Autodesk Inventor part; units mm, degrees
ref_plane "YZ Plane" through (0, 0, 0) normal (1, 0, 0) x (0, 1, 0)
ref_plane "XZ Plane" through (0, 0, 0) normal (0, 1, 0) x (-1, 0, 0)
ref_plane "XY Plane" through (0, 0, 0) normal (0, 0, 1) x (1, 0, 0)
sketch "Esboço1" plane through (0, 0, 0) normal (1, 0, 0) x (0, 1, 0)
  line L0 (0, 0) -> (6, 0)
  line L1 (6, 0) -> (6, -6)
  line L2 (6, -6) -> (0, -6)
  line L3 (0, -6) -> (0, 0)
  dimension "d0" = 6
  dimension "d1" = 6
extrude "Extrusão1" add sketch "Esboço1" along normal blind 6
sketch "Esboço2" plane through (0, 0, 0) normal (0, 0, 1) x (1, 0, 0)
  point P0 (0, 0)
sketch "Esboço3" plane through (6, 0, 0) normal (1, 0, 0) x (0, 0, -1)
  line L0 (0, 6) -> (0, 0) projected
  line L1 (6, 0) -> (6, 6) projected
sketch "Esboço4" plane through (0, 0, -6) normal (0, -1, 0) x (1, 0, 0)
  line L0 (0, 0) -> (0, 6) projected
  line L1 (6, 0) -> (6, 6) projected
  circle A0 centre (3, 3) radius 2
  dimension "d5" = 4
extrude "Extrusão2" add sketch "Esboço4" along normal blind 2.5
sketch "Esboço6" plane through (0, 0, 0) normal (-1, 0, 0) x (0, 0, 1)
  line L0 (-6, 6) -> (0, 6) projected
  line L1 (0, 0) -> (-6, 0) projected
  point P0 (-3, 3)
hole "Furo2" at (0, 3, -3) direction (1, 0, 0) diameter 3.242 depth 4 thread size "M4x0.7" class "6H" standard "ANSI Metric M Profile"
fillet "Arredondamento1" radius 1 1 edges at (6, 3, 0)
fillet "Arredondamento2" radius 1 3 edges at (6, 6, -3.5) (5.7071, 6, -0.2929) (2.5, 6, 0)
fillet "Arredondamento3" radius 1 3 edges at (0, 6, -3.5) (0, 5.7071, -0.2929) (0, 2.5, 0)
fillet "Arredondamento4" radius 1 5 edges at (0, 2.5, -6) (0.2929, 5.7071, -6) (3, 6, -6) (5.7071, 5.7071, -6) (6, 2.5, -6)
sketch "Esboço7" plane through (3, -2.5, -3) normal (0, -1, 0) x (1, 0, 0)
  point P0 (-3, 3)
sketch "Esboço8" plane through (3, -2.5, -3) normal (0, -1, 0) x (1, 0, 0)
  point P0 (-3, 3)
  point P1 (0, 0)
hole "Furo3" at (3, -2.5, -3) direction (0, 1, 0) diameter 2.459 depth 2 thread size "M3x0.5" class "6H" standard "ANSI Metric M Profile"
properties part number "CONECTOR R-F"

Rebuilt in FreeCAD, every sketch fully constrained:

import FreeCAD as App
import Part
import Sketcher


def edges_at(feature, points):
    """Names of the edges that pass closest to the given points."""
    edges = feature.Shape.Edges
    near = lambda p: min(range(len(edges)), key=lambda i: edges[i].distToShape(Part.Vertex(*p))[0])
    return sorted({f"Edge{near(p) + 1}" for p in points})

doc = App.newDocument("Part")
body = doc.addObject("PartDesign::Body", "Body")

sketch1 = doc.addObject("Sketcher::SketchObject", "Sketch")
body.addObject(sketch1)
sketch1.AttachmentSupport = (doc.YZ_Plane, [""])
sketch1.MapMode = "FlatFace"
sketch1.addGeometry([
    Part.LineSegment(App.Vector(6, 0, 0), App.Vector(0, 0, 0)),
    Part.LineSegment(App.Vector(0, 0, 0), App.Vector(0, -6, 0)),
    Part.LineSegment(App.Vector(0, -6, 0), App.Vector(6, -6, 0)),
    Part.LineSegment(App.Vector(6, -6, 0), App.Vector(6, 0, 0)),
], False)
sketch1.addConstraint([
    Sketcher.Constraint("Coincident", 0, 2, 1, 1),
    Sketcher.Constraint("Coincident", 1, 2, 2, 1),
    Sketcher.Constraint("Coincident", 2, 2, 3, 1),
    Sketcher.Constraint("Coincident", 3, 2, 0, 1),
    Sketcher.Constraint("Horizontal", 0),
    Sketcher.Constraint("Vertical", 1),
    Sketcher.Constraint("Horizontal", 2),
    Sketcher.Constraint("Vertical", 3),
    Sketcher.Constraint("Coincident", 0, 2, -1, 1),
    Sketcher.Constraint("Equal", 2, 1),
    Sketcher.Constraint("DistanceX", 0, 2, 0, 1, 6.0),
])
pad1 = doc.addObject("PartDesign::Pad", "Pad")
body.addObject(pad1)
pad1.Profile = sketch1
pad1.Length = 6

sketch2 = doc.addObject("Sketcher::SketchObject", "Sketch001")
body.addObject(sketch2)
sketch2.AttachmentSupport = (doc.XZ_Plane, [""])
sketch2.MapMode = "FlatFace"
sketch2.addGeometry(Part.Circle(App.Vector(3, -3, 0), App.Vector(0, 0, 1), 2), False)
sketch2.addConstraint([
    Sketcher.Constraint("Diameter", 0, 4.0),
    Sketcher.Constraint("DistanceX", -1, 1, 0, 3, 3.0),
    Sketcher.Constraint("DistanceY", 0, 3, -1, 1, 3.0),
])
pad2 = doc.addObject("PartDesign::Pad", "Pad001")
body.addObject(pad2)
pad2.Profile = sketch2
pad2.Length = 2.5

sketch3 = doc.addObject("Sketcher::SketchObject", "Sketch002")
body.addObject(sketch3)
sketch3.AttachmentSupport = (doc.YZ_Plane, [""])
sketch3.MapMode = "FlatFace"
sketch3.addGeometry(Part.Circle(App.Vector(3, -3, 0), App.Vector(0, 0, 1), 1.6), False)
sketch3.addConstraint([
    Sketcher.Constraint("Diameter", 0, 3.242),
    Sketcher.Constraint("DistanceX", -1, 1, 0, 3, 3.0),
    Sketcher.Constraint("DistanceY", 0, 3, -1, 1, 3.0),
])
doc.recompute()
hole = doc.addObject("PartDesign::Hole", "Hole")
body.addObject(hole)
hole.Profile = sketch3
hole.ThreadType = "None"
hole.Diameter = 3.242
hole.DepthType = "Dimension"
hole.Depth = 4
hole.DrillPoint = "Flat"
hole.Reversed = True
doc.recompute()

fillet = doc.addObject("PartDesign::Fillet", "Fillet")
body.addObject(fillet)
fillet.Base = (hole, edges_at(hole, [(6, 3, 0)]))
fillet.Radius = 1
doc.recompute()

fillet2 = doc.addObject("PartDesign::Fillet", "Fillet001")
body.addObject(fillet2)
fillet2.Base = (fillet, edges_at(fillet, [(6, 6, -3.5), (5.707, 6, -0.293), (2.5, 6, 0)]))
fillet2.Radius = 1
doc.recompute()

fillet3 = doc.addObject("PartDesign::Fillet", "Fillet002")
body.addObject(fillet3)
fillet3.Base = (fillet2, edges_at(fillet2, [(0, 6, -3.5), (0, 5.707, -0.293), (0, 2.5, 0)]))
fillet3.Radius = 1
doc.recompute()

fillet4 = doc.addObject("PartDesign::Fillet", "Fillet003")
body.addObject(fillet4)
fillet4.Base = (fillet3, edges_at(fillet3, [
    (0, 2.5, -6),
    (0.293, 5.707, -6),
    (3, 6, -6),
    (5.707, 5.707, -6),
    (6, 2.5, -6),
]))
fillet4.Radius = 1

sketch4 = doc.addObject("Sketcher::SketchObject", "Sketch003")
body.addObject(sketch4)
sketch4.AttachmentSupport = (doc.XZ_Plane, [""])
sketch4.MapMode = "FlatFace"
sketch4.AttachmentOffset = App.Placement(App.Vector(0, 0, 2.5), App.Rotation())
sketch4.addGeometry(Part.Circle(App.Vector(3, -3, 0), App.Vector(0, 0, 1), 1.2), False)
sketch4.addConstraint([
    Sketcher.Constraint("Diameter", 0, 2.459),
    Sketcher.Constraint("DistanceX", -1, 1, 0, 3, 3.0),
    Sketcher.Constraint("DistanceY", 0, 3, -1, 1, 3.0),
])
doc.recompute()
hole2 = doc.addObject("PartDesign::Hole", "Hole001")
body.addObject(hole2)
hole2.Profile = sketch4
hole2.ThreadType = "None"
hole2.Diameter = 2.459
hole2.DepthType = "Dimension"
hole2.Depth = 2
hole2.DrillPoint = "Flat"

doc.recompute()
